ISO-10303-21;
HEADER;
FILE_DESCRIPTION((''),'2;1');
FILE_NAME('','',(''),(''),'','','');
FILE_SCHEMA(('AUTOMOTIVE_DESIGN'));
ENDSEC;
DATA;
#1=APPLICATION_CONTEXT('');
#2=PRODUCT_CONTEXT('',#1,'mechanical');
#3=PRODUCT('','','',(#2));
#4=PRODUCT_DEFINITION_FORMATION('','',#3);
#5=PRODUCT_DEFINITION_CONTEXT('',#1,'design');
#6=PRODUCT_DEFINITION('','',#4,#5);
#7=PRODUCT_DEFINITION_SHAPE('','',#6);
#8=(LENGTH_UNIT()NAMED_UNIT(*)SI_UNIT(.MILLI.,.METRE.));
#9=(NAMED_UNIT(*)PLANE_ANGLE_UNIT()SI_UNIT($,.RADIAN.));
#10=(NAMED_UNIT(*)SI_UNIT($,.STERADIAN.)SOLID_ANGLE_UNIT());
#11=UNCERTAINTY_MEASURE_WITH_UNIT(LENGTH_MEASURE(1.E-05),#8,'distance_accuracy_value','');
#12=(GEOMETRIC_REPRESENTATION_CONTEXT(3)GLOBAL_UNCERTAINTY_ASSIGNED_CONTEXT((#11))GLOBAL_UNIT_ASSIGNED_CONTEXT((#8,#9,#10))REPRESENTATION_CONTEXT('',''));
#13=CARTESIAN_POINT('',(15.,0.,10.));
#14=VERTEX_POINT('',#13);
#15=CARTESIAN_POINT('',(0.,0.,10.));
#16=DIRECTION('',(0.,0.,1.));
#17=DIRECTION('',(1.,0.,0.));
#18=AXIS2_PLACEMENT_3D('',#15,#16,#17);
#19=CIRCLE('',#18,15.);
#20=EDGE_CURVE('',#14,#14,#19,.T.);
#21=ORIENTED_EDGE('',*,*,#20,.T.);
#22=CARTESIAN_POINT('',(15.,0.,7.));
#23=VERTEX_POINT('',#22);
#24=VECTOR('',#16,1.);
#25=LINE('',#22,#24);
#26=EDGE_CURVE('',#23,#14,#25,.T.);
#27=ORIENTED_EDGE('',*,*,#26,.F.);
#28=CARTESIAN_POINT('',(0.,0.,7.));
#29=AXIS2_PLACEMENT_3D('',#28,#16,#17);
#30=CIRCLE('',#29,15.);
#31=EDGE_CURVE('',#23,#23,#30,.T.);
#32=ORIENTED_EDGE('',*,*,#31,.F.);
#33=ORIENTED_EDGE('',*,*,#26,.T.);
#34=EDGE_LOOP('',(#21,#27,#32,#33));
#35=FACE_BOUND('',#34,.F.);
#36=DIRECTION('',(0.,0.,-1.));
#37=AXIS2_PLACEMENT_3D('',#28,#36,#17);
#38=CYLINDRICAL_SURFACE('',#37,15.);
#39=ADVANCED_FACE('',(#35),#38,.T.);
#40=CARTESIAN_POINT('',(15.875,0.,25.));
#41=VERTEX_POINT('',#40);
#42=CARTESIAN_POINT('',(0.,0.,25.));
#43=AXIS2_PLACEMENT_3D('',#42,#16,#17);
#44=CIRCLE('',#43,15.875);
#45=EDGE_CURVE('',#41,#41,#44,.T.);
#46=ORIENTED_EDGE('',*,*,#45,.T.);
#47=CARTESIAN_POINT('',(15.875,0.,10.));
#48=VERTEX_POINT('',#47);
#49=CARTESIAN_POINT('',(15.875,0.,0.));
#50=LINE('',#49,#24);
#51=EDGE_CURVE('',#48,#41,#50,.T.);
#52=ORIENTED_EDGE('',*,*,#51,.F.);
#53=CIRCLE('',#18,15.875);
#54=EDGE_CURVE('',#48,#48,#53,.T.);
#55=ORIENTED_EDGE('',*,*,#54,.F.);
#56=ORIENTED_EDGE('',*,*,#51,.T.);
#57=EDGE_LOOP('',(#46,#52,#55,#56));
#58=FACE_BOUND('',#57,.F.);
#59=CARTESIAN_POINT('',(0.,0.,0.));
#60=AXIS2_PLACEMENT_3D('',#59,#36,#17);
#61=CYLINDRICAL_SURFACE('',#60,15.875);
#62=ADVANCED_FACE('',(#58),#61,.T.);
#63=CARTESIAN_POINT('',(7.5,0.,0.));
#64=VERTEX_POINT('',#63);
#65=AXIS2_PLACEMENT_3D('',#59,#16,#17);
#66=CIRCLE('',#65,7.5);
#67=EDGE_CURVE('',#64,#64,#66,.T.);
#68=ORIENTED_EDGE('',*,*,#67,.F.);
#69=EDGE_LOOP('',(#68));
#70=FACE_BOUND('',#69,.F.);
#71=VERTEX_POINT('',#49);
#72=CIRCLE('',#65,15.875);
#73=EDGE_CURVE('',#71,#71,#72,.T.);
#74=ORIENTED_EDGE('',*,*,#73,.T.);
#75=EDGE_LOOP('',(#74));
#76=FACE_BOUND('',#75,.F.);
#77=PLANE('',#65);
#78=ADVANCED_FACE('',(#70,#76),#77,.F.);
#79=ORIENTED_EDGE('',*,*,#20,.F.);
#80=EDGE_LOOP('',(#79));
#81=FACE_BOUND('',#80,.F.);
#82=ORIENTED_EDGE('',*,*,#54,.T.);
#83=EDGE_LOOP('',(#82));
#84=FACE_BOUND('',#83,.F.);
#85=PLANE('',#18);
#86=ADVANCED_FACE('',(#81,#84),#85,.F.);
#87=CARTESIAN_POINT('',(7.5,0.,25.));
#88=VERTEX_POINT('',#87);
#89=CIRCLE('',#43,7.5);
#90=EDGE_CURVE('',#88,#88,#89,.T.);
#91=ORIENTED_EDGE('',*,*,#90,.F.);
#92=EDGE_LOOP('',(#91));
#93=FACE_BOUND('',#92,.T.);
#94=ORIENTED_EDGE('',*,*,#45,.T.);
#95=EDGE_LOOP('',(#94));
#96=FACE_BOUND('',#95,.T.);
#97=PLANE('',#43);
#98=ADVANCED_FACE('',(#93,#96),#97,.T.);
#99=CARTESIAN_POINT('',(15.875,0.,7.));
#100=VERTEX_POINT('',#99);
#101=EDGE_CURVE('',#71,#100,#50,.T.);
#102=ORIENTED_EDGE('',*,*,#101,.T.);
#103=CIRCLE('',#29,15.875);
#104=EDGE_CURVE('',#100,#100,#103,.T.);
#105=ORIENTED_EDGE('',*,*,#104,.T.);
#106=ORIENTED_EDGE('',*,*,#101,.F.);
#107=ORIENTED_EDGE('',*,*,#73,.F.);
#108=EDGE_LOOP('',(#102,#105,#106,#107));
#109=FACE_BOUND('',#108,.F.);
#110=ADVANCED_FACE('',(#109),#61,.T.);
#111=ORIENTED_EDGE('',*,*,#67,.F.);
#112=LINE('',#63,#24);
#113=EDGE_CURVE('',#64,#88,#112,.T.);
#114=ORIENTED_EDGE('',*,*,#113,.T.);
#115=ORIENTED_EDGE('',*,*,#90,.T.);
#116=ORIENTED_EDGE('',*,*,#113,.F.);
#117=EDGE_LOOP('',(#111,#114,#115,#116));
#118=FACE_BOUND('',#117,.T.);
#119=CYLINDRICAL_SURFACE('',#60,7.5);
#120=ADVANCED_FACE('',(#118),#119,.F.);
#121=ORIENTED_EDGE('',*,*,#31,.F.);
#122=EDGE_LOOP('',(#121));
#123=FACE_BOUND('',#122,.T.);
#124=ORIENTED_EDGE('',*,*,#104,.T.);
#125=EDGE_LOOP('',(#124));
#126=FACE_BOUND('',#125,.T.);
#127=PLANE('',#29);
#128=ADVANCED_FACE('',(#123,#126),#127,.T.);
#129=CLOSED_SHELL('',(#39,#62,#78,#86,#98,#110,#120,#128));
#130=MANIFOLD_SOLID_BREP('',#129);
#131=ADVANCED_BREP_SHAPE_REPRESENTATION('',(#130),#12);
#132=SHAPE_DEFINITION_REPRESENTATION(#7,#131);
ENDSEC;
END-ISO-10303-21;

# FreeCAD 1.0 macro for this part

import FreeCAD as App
import Part
import Sketcher
Q = App.Units.Quantity

doc = App.newDocument("Part")
body = doc.addObject("PartDesign::Body", "Body")

sketch1 = body.newObject("Sketcher::SketchObject", "Sketch")
sketch1.AttachmentSupport = (doc.getObject("XY_Plane"), [""])
sketch1.MapMode = "FlatFace"
sketch1.addGeometry([
    Part.Circle(App.Vector(0, 0, 0), App.Vector(0, 0, 1), 16),
    Part.Circle(App.Vector(0, 0, 0), App.Vector(0, 0, 1), 8),
], False)
sketch1.addConstraint([
    Sketcher.Constraint("Coincident", 0, 3, -1, 1),
    Sketcher.Constraint("Coincident", 1, 3, -1, 1),
    Sketcher.Constraint("Diameter", 1, Q("15 mm")),
    Sketcher.Constraint("Diameter", 0, Q("31.75 mm")),
])
pad1 = body.newObject("PartDesign::Pad", "Pad")
pad1.Profile = sketch1
pad1.Length = 25

sketch2 = body.newObject("Sketcher::SketchObject", "Sketch001")
sketch2.AttachmentSupport = (doc.getObject("XY_Plane"), [""])
sketch2.MapMode = "FlatFace"
sketch2.AttachmentOffset = App.Placement(App.Vector(0, 0, 7), App.Rotation())
sketch2.addGeometry([
    Part.Circle(App.Vector(0, 0, 0), App.Vector(0, 0, 1), 16),
    Part.Circle(App.Vector(0, 0, 0), App.Vector(0, 0, 1), 15),
], False)
sketch2.addConstraint([
    Sketcher.Constraint("Coincident", 0, 3, -1, 1),
    Sketcher.Constraint("Coincident", 1, 3, -1, 1),
    Sketcher.Constraint("Diameter", 1, Q("30 mm")),
    Sketcher.Constraint("Diameter", 0, Q("31.75 mm")),
])
pocket1 = body.newObject("PartDesign::Pocket", "Pocket")
pocket1.Profile = sketch2
pocket1.Length = 3
pocket1.Reversed = True

doc.recompute()
